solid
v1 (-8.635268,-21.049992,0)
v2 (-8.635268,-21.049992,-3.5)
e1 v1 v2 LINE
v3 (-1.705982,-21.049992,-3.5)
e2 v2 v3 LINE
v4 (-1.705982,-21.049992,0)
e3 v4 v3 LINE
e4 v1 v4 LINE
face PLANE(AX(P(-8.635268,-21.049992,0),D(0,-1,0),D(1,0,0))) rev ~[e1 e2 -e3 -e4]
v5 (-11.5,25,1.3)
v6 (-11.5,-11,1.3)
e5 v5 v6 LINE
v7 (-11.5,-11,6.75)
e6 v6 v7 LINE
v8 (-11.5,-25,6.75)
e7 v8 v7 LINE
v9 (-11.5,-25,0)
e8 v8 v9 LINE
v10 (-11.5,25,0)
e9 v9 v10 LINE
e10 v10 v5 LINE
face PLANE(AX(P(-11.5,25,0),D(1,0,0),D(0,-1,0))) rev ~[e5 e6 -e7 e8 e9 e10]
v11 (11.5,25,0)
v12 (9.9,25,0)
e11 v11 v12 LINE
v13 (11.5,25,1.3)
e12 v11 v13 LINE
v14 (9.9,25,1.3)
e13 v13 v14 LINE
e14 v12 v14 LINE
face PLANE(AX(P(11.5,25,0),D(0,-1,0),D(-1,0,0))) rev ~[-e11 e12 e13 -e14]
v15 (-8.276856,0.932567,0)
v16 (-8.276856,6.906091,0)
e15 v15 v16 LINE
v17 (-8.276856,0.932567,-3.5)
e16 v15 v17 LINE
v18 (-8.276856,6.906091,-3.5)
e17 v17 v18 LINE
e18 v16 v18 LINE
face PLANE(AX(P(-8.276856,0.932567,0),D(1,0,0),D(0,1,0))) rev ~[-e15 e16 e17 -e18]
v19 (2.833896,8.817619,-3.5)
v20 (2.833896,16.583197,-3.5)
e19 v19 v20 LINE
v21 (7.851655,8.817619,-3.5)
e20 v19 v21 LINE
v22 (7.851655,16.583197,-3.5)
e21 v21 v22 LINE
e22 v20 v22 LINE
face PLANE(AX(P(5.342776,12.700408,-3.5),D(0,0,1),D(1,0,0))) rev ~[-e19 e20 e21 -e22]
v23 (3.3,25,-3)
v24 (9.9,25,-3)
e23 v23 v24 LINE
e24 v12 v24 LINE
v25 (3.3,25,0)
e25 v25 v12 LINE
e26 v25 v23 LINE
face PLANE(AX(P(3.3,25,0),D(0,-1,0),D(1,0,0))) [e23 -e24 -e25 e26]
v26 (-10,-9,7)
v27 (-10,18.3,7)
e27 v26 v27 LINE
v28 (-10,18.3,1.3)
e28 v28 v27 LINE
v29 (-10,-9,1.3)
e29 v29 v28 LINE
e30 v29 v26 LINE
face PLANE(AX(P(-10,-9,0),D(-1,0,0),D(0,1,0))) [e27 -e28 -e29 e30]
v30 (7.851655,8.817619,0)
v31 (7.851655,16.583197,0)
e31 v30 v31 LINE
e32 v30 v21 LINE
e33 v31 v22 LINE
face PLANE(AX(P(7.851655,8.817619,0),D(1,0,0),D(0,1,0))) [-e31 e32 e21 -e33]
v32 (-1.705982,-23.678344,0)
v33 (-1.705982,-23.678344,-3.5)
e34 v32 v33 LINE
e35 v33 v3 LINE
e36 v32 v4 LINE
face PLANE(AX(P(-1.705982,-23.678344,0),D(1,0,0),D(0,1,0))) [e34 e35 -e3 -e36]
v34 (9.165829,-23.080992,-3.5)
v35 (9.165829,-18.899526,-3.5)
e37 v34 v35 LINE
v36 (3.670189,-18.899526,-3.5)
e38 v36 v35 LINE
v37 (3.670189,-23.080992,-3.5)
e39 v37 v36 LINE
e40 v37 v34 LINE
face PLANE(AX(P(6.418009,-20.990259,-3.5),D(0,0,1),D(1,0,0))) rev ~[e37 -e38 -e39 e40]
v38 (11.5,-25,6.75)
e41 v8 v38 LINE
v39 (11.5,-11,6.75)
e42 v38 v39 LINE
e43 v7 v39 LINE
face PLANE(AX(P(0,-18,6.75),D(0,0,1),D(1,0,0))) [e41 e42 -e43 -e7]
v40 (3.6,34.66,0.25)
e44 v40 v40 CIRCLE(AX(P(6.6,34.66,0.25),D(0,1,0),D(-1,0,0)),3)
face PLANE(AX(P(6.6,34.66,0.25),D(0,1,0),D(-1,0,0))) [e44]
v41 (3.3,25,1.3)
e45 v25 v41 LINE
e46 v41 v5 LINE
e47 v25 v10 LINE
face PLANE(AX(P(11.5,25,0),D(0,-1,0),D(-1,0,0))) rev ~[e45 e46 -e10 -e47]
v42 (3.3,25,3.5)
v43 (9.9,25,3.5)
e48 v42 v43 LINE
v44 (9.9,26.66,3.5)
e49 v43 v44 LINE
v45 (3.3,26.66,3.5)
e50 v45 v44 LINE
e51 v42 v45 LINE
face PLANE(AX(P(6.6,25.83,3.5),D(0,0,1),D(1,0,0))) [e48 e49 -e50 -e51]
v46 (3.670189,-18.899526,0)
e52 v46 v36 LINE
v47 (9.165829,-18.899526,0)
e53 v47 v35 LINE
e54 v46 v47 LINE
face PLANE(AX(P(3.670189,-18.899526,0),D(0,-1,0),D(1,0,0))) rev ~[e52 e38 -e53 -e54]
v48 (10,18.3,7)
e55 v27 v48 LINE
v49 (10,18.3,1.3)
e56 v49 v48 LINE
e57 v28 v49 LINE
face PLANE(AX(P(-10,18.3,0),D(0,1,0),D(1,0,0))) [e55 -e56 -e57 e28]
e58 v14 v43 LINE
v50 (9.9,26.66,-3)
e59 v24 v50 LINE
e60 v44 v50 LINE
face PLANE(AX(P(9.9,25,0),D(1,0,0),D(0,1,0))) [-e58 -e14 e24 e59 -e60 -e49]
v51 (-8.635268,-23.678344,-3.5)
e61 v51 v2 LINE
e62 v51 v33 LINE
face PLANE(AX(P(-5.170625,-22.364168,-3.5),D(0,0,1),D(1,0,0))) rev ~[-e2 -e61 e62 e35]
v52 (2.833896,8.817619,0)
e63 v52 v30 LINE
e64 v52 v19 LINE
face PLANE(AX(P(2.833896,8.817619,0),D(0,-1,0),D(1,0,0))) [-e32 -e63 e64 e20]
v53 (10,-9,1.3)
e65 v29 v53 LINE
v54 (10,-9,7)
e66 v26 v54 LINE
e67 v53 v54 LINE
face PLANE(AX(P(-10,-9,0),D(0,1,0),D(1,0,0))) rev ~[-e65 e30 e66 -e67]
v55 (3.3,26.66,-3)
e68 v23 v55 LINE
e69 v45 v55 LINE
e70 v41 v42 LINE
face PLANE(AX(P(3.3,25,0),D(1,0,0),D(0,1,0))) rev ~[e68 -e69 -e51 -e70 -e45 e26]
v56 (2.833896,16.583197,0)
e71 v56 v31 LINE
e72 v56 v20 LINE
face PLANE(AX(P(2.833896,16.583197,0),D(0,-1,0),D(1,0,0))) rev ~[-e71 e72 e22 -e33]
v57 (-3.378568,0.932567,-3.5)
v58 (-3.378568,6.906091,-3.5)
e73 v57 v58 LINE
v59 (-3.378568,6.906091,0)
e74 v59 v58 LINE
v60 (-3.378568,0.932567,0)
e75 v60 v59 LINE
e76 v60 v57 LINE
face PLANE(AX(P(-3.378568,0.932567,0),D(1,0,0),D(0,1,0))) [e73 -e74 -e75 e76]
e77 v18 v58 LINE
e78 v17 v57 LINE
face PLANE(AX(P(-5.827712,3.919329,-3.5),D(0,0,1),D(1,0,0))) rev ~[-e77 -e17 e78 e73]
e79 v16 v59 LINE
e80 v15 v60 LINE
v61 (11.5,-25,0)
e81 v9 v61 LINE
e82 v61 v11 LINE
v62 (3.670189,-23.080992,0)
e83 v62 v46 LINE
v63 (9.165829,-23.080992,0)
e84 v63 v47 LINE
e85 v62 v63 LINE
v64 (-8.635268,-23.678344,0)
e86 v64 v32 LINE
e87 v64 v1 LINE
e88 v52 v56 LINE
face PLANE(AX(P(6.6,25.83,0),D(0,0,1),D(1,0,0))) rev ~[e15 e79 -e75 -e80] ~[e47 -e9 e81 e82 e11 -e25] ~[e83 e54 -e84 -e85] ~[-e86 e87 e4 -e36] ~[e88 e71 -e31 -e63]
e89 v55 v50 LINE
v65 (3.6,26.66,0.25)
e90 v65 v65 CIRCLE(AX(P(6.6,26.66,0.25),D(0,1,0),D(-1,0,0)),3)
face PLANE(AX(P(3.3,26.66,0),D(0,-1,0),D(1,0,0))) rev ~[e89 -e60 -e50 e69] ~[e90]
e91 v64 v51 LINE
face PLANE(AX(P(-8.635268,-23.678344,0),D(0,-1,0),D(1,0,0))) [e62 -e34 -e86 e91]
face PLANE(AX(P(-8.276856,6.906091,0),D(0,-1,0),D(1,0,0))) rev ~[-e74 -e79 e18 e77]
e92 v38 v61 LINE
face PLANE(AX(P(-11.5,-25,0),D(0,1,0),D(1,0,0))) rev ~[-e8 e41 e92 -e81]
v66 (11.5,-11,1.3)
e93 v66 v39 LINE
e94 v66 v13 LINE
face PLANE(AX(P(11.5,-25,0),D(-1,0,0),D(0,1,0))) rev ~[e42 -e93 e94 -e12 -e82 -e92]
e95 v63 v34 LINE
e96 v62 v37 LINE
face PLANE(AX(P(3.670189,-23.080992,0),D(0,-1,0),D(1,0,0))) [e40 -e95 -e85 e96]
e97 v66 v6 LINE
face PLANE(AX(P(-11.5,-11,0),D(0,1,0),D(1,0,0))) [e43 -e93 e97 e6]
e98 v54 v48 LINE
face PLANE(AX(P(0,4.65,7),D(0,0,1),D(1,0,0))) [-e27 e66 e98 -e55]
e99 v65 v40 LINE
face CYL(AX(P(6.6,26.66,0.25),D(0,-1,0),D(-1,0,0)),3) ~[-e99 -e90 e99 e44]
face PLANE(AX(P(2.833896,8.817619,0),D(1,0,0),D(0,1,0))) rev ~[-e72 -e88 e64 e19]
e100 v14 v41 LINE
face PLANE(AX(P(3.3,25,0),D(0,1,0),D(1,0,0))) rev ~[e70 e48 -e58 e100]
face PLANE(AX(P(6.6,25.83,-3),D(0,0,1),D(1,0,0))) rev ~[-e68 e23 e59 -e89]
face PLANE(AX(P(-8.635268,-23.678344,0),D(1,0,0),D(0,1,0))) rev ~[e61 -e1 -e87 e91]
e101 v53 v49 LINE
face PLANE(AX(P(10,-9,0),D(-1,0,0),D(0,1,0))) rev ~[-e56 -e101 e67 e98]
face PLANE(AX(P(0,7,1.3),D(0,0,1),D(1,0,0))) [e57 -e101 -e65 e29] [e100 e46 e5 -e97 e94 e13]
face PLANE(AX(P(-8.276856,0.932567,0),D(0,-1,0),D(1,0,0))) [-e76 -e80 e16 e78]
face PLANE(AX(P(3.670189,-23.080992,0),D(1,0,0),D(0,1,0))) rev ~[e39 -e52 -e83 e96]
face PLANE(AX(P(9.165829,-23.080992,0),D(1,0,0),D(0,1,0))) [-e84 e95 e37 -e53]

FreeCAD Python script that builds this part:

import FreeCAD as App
import Part
import Sketcher
from FreeCAD import Vector

doc = App.newDocument("Part")
body = doc.addObject("PartDesign::Body", "Body")

sketch1 = body.newObject("Sketcher::SketchObject", "Sketch")
sketch1.AttachmentSupport = (doc.getObject("XY_Plane"), [""])
sketch1.MapMode = "FlatFace"
sketch1.addGeometry([
    Part.LineSegment(Vector(-11.5, 25, 0), Vector(-11.5, -25, 0)),
    Part.LineSegment(Vector(-11.5, -25, 0), Vector(11.5, -25, 0)),
    Part.LineSegment(Vector(11.5, -25, 0), Vector(11.5, 25, 0)),
    Part.LineSegment(Vector(11.5, 25, 0), Vector(-11.5, 25, 0)),
    Part.LineSegment(Vector(-1.7, -23.7, 0), Vector(-8.6, -23.7, 0)),
    Part.LineSegment(Vector(-8.6, -23.7, 0), Vector(-8.6, -21, 0)),
    Part.LineSegment(Vector(-8.6, -21, 0), Vector(-1.7, -21, 0)),
    Part.LineSegment(Vector(-1.7, -21, 0), Vector(-1.7, -23.7, 0)),
    Part.LineSegment(Vector(9.2, -23.1, 0), Vector(3.7, -23.1, 0)),
    Part.LineSegment(Vector(3.7, -23.1, 0), Vector(3.7, -18.9, 0)),
    Part.LineSegment(Vector(3.7, -18.9, 0), Vector(9.2, -18.9, 0)),
    Part.LineSegment(Vector(9.2, -18.9, 0), Vector(9.2, -23.1, 0)),
    Part.LineSegment(Vector(10, -9, 0), Vector(-10, -9, 0)),
    Part.LineSegment(Vector(-10, -9, 0), Vector(-10, 18.3, 0)),
    Part.LineSegment(Vector(-10, 18.3, 0), Vector(10, 18.3, 0)),
    Part.LineSegment(Vector(10, 18.3, 0), Vector(10, -9, 0)),
], False)
sketch1.addConstraint([
    Sketcher.Constraint("Coincident", 0, 2, 1, 1),
    Sketcher.Constraint("Coincident", 1, 2, 2, 1),
    Sketcher.Constraint("Coincident", 2, 2, 3, 1),
    Sketcher.Constraint("Coincident", 3, 2, 0, 1),
    Sketcher.Constraint("Coincident", 4, 2, 5, 1),
    Sketcher.Constraint("Coincident", 5, 2, 6, 1),
    Sketcher.Constraint("Coincident", 6, 2, 7, 1),
    Sketcher.Constraint("Coincident", 7, 2, 4, 1),
    Sketcher.Constraint("Coincident", 8, 2, 9, 1),
    Sketcher.Constraint("Coincident", 9, 2, 10, 1),
    Sketcher.Constraint("Coincident", 10, 2, 11, 1),
    Sketcher.Constraint("Coincident", 11, 2, 8, 1),
    Sketcher.Constraint("Coincident", 12, 2, 13, 1),
    Sketcher.Constraint("Coincident", 13, 2, 14, 1),
    Sketcher.Constraint("Coincident", 14, 2, 15, 1),
    Sketcher.Constraint("Coincident", 15, 2, 12, 1),
    Sketcher.Constraint("Vertical", 0),
    Sketcher.Constraint("Horizontal", 1),
    Sketcher.Constraint("Vertical", 2),
    Sketcher.Constraint("Horizontal", 3),
    Sketcher.Constraint("Horizontal", 4),
    Sketcher.Constraint("Vertical", 5),
    Sketcher.Constraint("Horizontal", 6),
    Sketcher.Constraint("Vertical", 7),
    Sketcher.Constraint("Horizontal", 8),
    Sketcher.Constraint("Vertical", 9),
    Sketcher.Constraint("Horizontal", 10),
    Sketcher.Constraint("Vertical", 11),
    Sketcher.Constraint("Horizontal", 12),
    Sketcher.Constraint("Vertical", 13),
    Sketcher.Constraint("Horizontal", 14),
    Sketcher.Constraint("Vertical", 15),
    Sketcher.Constraint("Symmetric", 0, 2, 2, 2, -1, 1),
    Sketcher.Constraint("DistanceX", 1, 1, 1, 2, 23.0),
    Sketcher.Constraint("DistanceX", 12, 2, 12, 1, 20.0),
    Sketcher.Constraint("DistanceY", 0, 2, 0, 1, 50.0),
    Sketcher.Constraint("DistanceY", 13, 1, 13, 2, 27.3),
    Sketcher.Constraint("DistanceX", 12, 2, -1, 1, 10.0),
    Sketcher.Constraint("DistanceY", 12, 2, -1, 1, 9.0),
    Sketcher.Constraint("DistanceY", 8, 2, 6, 2, 2.031),
    Sketcher.Constraint("DistanceX", 8, 2, 8, 1, 5.49564),
    Sketcher.Constraint("DistanceY", 5, 1, 5, 2, 2.628351),
    Sketcher.Constraint("DistanceX", 4, 2, 4, 1, 6.929286),
    Sketcher.Constraint("DistanceY", 9, 1, 9, 2, 4.181466),
    Sketcher.Constraint("DistanceX", -1, 1, 8, 2, 3.670189),
    Sketcher.Constraint("DistanceY", 8, 2, -1, 1, 23.080992),
    Sketcher.Constraint("DistanceX", 0, 2, 4, 2, 2.864732),
])
pad1 = body.newObject("PartDesign::Pad", "Pad")
pad1.Profile = sketch1
pad1.Length = 1.3

sketch2 = body.newObject("Sketcher::SketchObject", "Sketch001")
sketch2.AttachmentSupport = (doc.getObject("XY_Plane"), [""])
sketch2.MapMode = "FlatFace"
sketch2.addGeometry([
    Part.LineSegment(Vector(-10, 18, 0), Vector(-10, -9, 0)),
    Part.LineSegment(Vector(-10, -9, 0), Vector(10, -9, 0)),
    Part.LineSegment(Vector(10, -9, 0), Vector(10, 18, 0)),
    Part.LineSegment(Vector(10, 18, 0), Vector(-10, 18, 0)),
], False)
sketch2.addConstraint([
    Sketcher.Constraint("Coincident", 0, 2, 1, 1),
    Sketcher.Constraint("Coincident", 1, 2, 2, 1),
    Sketcher.Constraint("Coincident", 2, 2, 3, 1),
    Sketcher.Constraint("Coincident", 3, 2, 0, 1),
    Sketcher.Constraint("Vertical", 0),
    Sketcher.Constraint("Horizontal", 1),
    Sketcher.Constraint("Vertical", 2),
    Sketcher.Constraint("Horizontal", 3),
    Sketcher.Constraint("DistanceX", 1, 1, 1, 2, 20.0),
    Sketcher.Constraint("DistanceY", 0, 2, 0, 1, 27.3),
    Sketcher.Constraint("DistanceX", 0, 2, -1, 1, 10.0),
    Sketcher.Constraint("DistanceY", 0, 2, -1, 1, 9.0),
])
pad2 = body.newObject("PartDesign::Pad", "Pad001")
pad2.Profile = sketch2
pad2.Length = 7

sketch3 = body.newObject("Sketcher::SketchObject", "Sketch002")
sketch3.AttachmentSupport = (doc.getObject("XY_Plane"), [""])
sketch3.MapMode = "FlatFace"
sketch3.addGeometry([
    Part.LineSegment(Vector(-12, -11, 0), Vector(-12, -25, 0)),
    Part.LineSegment(Vector(-12, -25, 0), Vector(12, -25, 0)),
    Part.LineSegment(Vector(12, -25, 0), Vector(12, -11, 0)),
    Part.LineSegment(Vector(12, -11, 0), Vector(-12, -11, 0)),
], False)
sketch3.addConstraint([
    Sketcher.Constraint("Coincident", 0, 2, 1, 1),
    Sketcher.Constraint("Coincident", 1, 2, 2, 1),
    Sketcher.Constraint("Coincident", 2, 2, 3, 1),
    Sketcher.Constraint("Coincident", 3, 2, 0, 1),
    Sketcher.Constraint("Vertical", 0),
    Sketcher.Constraint("Horizontal", 1),
    Sketcher.Constraint("Vertical", 2),
    Sketcher.Constraint("Horizontal", 3),
    Sketcher.Constraint("DistanceX", 1, 1, 1, 2, 23.0),
    Sketcher.Constraint("DistanceY", 0, 2, 0, 1, 14.0),
    Sketcher.Constraint("DistanceY", 0, 2, -1, 1, 25.0),
    Sketcher.Constraint("DistanceX", 0, 2, -1, 1, 11.5),
])
pad3 = body.newObject("PartDesign::Pad", "Pad002")
pad3.Profile = sketch3
pad3.Length = 6.75

sketch4 = body.newObject("Sketcher::SketchObject", "Sketch003")
sketch4.AttachmentSupport = (doc.getObject("XY_Plane"), [""])
sketch4.MapMode = "FlatFace"
sketch4.addGeometry([
    Part.LineSegment(Vector(3.3, 26.7, 0), Vector(3.3, 25, 0)),
    Part.LineSegment(Vector(3.3, 25, 0), Vector(9.9, 25, 0)),
    Part.LineSegment(Vector(9.9, 25, 0), Vector(9.9, 26.7, 0)),
    Part.LineSegment(Vector(9.9, 26.7, 0), Vector(3.3, 26.7, 0)),
], False)
sketch4.addConstraint([
    Sketcher.Constraint("Coincident", 0, 2, 1, 1),
    Sketcher.Constraint("Coincident", 1, 2, 2, 1),
    Sketcher.Constraint("Coincident", 2, 2, 3, 1),
    Sketcher.Constraint("Coincident", 3, 2, 0, 1),
    Sketcher.Constraint("Vertical", 0),
    Sketcher.Constraint("Horizontal", 1),
    Sketcher.Constraint("Vertical", 2),
    Sketcher.Constraint("Horizontal", 3),
    Sketcher.Constraint("DistanceX", 1, 1, 1, 2, 6.6),
    Sketcher.Constraint("DistanceY", -1, 1, 0, 2, 25.0),
    Sketcher.Constraint("DistanceY", 0, 2, 0, 1, 1.66),
    Sketcher.Constraint("DistanceX", -1, 1, 0, 2, 3.3),
])
pad4 = body.newObject("PartDesign::Pad", "Pad003")
pad4.Profile = sketch4
pad4.Type = "TwoLengths"
pad4.Length = 3.5
pad4.Length2 = 3

sketch5 = body.newObject("Sketcher::SketchObject", "Sketch004")
sketch5.AttachmentSupport = (doc.getObject("XY_Plane"), [""])
sketch5.MapMode = "FlatFace"
sketch5.addGeometry([
    Part.LineSegment(Vector(2.8, 16.6, 0), Vector(2.8, 8.8, 0)),
    Part.LineSegment(Vector(2.8, 8.8, 0), Vector(7.9, 8.8, 0)),
    Part.LineSegment(Vector(7.9, 8.8, 0), Vector(7.9, 16.6, 0)),
    Part.LineSegment(Vector(7.9, 16.6, 0), Vector(2.8, 16.6, 0)),
    Part.LineSegment(Vector(-8.3, 6.9, 0), Vector(-8.3, 0.9, 0)),
    Part.LineSegment(Vector(-8.3, 0.9, 0), Vector(-3.4, 0.9, 0)),
    Part.LineSegment(Vector(-3.4, 0.9, 0), Vector(-3.4, 6.9, 0)),
    Part.LineSegment(Vector(-3.4, 6.9, 0), Vector(-8.3, 6.9, 0)),
    Part.LineSegment(Vector(3.7, -18.9, 0), Vector(3.7, -23.1, 0)),
    Part.LineSegment(Vector(3.7, -23.1, 0), Vector(9.2, -23.1, 0)),
    Part.LineSegment(Vector(9.2, -23.1, 0), Vector(9.2, -18.9, 0)),
    Part.LineSegment(Vector(9.2, -18.9, 0), Vector(3.7, -18.9, 0)),
    Part.LineSegment(Vector(-8.6, -21, 0), Vector(-8.6, -23.7, 0)),
    Part.LineSegment(Vector(-8.6, -23.7, 0), Vector(-1.7, -23.7, 0)),
    Part.LineSegment(Vector(-1.7, -23.7, 0), Vector(-1.7, -21, 0)),
    Part.LineSegment(Vector(-1.7, -21, 0), Vector(-8.6, -21, 0)),
], False)
sketch5.addConstraint([
    Sketcher.Constraint("Coincident", 0, 2, 1, 1),
    Sketcher.Constraint("Coincident", 1, 2, 2, 1),
    Sketcher.Constraint("Coincident", 2, 2, 3, 1),
    Sketcher.Constraint("Coincident", 3, 2, 0, 1),
    Sketcher.Constraint("Coincident", 4, 2, 5, 1),
    Sketcher.Constraint("Coincident", 5, 2, 6, 1),
    Sketcher.Constraint("Coincident", 6, 2, 7, 1),
    Sketcher.Constraint("Coincident", 7, 2, 4, 1),
    Sketcher.Constraint("Coincident", 8, 2, 9, 1),
    Sketcher.Constraint("Coincident", 9, 2, 10, 1),
    Sketcher.Constraint("Coincident", 10, 2, 11, 1),
    Sketcher.Constraint("Coincident", 11, 2, 8, 1),
    Sketcher.Constraint("Coincident", 12, 2, 13, 1),
    Sketcher.Constraint("Coincident", 13, 2, 14, 1),
    Sketcher.Constraint("Coincident", 14, 2, 15, 1),
    Sketcher.Constraint("Coincident", 15, 2, 12, 1),
    Sketcher.Constraint("Vertical", 0),
    Sketcher.Constraint("Horizontal", 1),
    Sketcher.Constraint("Vertical", 2),
    Sketcher.Constraint("Horizontal", 3),
    Sketcher.Constraint("Vertical", 4),
    Sketcher.Constraint("Horizontal", 5),
    Sketcher.Constraint("Vertical", 6),
    Sketcher.Constraint("Horizontal", 7),
    Sketcher.Constraint("Vertical", 8),
    Sketcher.Constraint("Horizontal", 9),
    Sketcher.Constraint("Vertical", 10),
    Sketcher.Constraint("Horizontal", 11),
    Sketcher.Constraint("Vertical", 12),
    Sketcher.Constraint("Horizontal", 13),
    Sketcher.Constraint("Vertical", 14),
    Sketcher.Constraint("Horizontal", 15),
    Sketcher.Constraint("DistanceY", 8, 2, 14, 2, 2.031),
    Sketcher.Constraint("DistanceX", 1, 1, 1, 2, 5.017759),
    Sketcher.Constraint("DistanceX", 5, 1, 5, 2, 4.898288),
    Sketcher.Constraint("DistanceX", 9, 1, 9, 2, 5.49564),
    Sketcher.Constraint("DistanceY", 12, 2, 12, 1, 2.628351),
    Sketcher.Constraint("DistanceX", 13, 1, 13, 2, 6.929286),
    Sketcher.Constraint("DistanceY", 0, 2, 0, 1, 7.765578),
    Sketcher.Constraint("DistanceY", 4, 2, 4, 1, 5.973523),
    Sketcher.Constraint("DistanceY", 8, 2, 8, 1, 4.181466),
    Sketcher.Constraint("DistanceY", -1, 1, 0, 2, 8.817619),
    Sketcher.Constraint("DistanceX", 5, 2, -1, 1, 3.378568),
    Sketcher.Constraint("DistanceY", -1, 1, 6, 2, 6.906091),
    Sketcher.Constraint("DistanceX", -1, 1, 8, 2, 3.670189),
    Sketcher.Constraint("DistanceY", 8, 2, -1, 1, 23.080992),
    Sketcher.Constraint("DistanceX", 4, 2, 1, 2, 16.128512),
    Sketcher.Constraint("DistanceX", 12, 2, 4, 2, 0.358412),
])
pad5 = body.newObject("PartDesign::Pad", "Pad004")
pad5.Profile = sketch5
pad5.Length = 3.5
pad5.Reversed = True

sketch6 = body.newObject("Sketcher::SketchObject", "Sketch005")
sketch6.AttachmentSupport = (doc.getObject("XZ_Plane"), [""])
sketch6.MapMode = "FlatFace"
sketch6.AttachmentOffset = App.Placement(Vector(0, 0, -26.66), App.Rotation())
sketch6.addGeometry(Part.Circle(Vector(6.6, 0.2, 0), Vector(0, 0, 1), 3), False)
sketch6.addConstraint([
    Sketcher.Constraint("Diameter", 0, 6.0),
    Sketcher.Constraint("DistanceX", -1, 1, 0, 3, 6.6),
    Sketcher.Constraint("DistanceY", -1, 1, 0, 3, 0.25),
])
pad6 = body.newObject("PartDesign::Pad", "Pad005")
pad6.Profile = sketch6
pad6.Length = 8
pad6.Reversed = True

doc.recompute()
